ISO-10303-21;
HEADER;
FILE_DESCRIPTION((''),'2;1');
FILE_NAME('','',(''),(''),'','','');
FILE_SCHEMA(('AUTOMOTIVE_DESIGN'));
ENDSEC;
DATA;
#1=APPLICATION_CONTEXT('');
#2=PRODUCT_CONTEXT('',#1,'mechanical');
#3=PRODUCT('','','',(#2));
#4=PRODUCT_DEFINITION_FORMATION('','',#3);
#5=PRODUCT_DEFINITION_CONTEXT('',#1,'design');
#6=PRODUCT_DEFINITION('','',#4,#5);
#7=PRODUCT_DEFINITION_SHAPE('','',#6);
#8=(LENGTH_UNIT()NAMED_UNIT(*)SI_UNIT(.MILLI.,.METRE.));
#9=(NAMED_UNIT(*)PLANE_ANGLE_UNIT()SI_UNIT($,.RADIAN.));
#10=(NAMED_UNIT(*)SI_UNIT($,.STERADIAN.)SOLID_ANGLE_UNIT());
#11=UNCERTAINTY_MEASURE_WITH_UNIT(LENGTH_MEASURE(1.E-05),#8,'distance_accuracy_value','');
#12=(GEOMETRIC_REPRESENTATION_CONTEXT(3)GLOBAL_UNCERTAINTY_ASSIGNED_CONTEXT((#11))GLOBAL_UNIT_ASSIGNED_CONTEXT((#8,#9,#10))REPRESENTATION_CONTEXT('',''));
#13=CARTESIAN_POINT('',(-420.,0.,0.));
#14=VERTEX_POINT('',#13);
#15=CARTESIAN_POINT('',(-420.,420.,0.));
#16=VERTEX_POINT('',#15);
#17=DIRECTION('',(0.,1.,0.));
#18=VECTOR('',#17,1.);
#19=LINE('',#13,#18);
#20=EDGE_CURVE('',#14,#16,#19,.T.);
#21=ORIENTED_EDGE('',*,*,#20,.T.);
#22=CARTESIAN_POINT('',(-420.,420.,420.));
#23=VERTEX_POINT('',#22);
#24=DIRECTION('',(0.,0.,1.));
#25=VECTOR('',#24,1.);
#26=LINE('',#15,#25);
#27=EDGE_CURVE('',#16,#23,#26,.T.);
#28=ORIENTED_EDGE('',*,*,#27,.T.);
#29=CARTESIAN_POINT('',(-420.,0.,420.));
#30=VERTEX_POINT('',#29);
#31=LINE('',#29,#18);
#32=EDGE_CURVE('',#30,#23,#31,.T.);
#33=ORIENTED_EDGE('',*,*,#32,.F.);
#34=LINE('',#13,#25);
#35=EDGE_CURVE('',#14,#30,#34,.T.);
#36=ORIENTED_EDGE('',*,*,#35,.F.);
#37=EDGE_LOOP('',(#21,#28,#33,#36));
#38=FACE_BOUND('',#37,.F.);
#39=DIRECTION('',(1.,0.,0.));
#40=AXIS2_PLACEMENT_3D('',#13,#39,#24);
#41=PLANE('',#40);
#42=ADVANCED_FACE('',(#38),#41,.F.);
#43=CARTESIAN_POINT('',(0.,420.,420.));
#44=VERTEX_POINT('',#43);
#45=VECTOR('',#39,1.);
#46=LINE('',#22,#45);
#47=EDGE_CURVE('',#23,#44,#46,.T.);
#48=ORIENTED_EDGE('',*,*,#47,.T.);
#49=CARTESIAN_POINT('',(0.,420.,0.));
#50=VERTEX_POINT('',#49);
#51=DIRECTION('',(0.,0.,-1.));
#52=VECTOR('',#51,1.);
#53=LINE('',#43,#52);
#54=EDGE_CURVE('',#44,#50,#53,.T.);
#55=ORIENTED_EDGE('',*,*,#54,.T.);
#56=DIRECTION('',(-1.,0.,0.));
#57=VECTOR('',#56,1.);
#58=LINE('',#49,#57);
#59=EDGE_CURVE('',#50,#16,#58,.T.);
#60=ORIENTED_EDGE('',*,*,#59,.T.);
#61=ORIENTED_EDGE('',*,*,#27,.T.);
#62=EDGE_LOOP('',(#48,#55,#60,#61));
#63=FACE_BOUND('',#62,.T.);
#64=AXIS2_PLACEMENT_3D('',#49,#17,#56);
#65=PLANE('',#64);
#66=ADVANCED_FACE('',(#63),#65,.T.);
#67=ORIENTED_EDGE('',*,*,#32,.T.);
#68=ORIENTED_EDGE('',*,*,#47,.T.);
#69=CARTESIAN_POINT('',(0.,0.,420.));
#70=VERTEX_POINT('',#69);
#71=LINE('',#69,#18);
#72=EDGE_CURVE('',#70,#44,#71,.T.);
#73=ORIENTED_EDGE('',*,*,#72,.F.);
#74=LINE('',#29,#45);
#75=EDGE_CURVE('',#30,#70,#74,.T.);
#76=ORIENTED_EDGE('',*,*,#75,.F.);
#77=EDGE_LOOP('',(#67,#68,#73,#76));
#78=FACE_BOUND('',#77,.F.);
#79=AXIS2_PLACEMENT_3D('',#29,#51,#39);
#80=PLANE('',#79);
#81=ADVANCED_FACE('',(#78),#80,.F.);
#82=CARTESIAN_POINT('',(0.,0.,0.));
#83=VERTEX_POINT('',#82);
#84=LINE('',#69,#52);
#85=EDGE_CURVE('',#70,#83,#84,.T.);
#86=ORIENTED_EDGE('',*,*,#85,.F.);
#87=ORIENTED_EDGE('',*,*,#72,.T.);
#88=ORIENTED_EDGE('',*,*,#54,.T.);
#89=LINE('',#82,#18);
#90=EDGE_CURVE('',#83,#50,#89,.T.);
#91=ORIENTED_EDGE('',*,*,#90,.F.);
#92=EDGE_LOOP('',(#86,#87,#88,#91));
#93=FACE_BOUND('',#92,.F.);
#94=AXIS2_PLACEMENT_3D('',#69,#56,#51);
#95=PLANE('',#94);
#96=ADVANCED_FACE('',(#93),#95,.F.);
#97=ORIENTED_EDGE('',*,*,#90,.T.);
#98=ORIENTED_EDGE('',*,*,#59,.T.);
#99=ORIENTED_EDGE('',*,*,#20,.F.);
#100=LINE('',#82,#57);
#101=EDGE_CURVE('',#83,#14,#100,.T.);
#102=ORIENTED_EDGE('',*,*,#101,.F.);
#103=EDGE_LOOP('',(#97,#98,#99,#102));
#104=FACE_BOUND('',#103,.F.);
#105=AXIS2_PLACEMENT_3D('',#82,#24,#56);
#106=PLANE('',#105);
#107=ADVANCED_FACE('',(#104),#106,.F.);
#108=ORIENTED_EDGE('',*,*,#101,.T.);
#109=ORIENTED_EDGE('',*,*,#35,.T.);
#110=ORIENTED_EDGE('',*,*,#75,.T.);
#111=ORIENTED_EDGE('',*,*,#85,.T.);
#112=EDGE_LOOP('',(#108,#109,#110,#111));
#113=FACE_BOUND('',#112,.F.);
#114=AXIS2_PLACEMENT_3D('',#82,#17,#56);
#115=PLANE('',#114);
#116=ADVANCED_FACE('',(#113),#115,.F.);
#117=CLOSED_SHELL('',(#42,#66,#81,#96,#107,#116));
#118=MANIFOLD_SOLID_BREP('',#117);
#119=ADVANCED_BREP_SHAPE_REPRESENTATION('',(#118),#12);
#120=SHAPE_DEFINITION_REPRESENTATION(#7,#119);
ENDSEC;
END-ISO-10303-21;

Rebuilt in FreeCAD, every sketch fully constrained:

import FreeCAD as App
import Part
import Sketcher
from FreeCAD import Vector

doc = App.newDocument("Part")
body = doc.addObject("PartDesign::Body", "Body")

sketch1 = body.newObject("Sketcher::SketchObject", "Sketch")
sketch1.AttachmentSupport = (doc.getObject("XZ_Plane"), [""])
sketch1.MapMode = "FlatFace"
sketch1.addGeometry(Part.LineSegment(Vector(0, 420, 0), Vector(0, 0, 0)), False)
sketch1.addGeometry(Part.LineSegment(Vector(0, 0, 0), Vector(-420, 0, 0)), False)
sketch1.addGeometry(Part.LineSegment(Vector(-420, 0, 0), Vector(-420, 420, 0)), False)
sketch1.addGeometry(Part.LineSegment(Vector(-420, 420, 0), Vector(0, 420, 0)), False)
sketch1.addConstraint(Sketcher.Constraint("Coincident", 0, 2, 1, 1))
sketch1.addConstraint(Sketcher.Constraint("Coincident", 1, 2, 2, 1))
sketch1.addConstraint(Sketcher.Constraint("Coincident", 2, 2, 3, 1))
sketch1.addConstraint(Sketcher.Constraint("Coincident", 3, 2, 0, 1))
sketch1.addConstraint(Sketcher.Constraint("Vertical", 0))
sketch1.addConstraint(Sketcher.Constraint("Horizontal", 1))
sketch1.addConstraint(Sketcher.Constraint("Vertical", 2))
sketch1.addConstraint(Sketcher.Constraint("Horizontal", 3))
sketch1.addConstraint(Sketcher.Constraint("Coincident", 0, 2, -1, 1))
sketch1.addConstraint(Sketcher.Constraint("Equal", 3, 0))
sketch1.addConstraint(Sketcher.Constraint("DistanceX", 1, 2, 1, 1, 420.0))
pad1 = body.newObject("PartDesign::Pad", "Pad")
pad1.Profile = sketch1
pad1.Length = 420
pad1.Reversed = True

doc.recompute()
